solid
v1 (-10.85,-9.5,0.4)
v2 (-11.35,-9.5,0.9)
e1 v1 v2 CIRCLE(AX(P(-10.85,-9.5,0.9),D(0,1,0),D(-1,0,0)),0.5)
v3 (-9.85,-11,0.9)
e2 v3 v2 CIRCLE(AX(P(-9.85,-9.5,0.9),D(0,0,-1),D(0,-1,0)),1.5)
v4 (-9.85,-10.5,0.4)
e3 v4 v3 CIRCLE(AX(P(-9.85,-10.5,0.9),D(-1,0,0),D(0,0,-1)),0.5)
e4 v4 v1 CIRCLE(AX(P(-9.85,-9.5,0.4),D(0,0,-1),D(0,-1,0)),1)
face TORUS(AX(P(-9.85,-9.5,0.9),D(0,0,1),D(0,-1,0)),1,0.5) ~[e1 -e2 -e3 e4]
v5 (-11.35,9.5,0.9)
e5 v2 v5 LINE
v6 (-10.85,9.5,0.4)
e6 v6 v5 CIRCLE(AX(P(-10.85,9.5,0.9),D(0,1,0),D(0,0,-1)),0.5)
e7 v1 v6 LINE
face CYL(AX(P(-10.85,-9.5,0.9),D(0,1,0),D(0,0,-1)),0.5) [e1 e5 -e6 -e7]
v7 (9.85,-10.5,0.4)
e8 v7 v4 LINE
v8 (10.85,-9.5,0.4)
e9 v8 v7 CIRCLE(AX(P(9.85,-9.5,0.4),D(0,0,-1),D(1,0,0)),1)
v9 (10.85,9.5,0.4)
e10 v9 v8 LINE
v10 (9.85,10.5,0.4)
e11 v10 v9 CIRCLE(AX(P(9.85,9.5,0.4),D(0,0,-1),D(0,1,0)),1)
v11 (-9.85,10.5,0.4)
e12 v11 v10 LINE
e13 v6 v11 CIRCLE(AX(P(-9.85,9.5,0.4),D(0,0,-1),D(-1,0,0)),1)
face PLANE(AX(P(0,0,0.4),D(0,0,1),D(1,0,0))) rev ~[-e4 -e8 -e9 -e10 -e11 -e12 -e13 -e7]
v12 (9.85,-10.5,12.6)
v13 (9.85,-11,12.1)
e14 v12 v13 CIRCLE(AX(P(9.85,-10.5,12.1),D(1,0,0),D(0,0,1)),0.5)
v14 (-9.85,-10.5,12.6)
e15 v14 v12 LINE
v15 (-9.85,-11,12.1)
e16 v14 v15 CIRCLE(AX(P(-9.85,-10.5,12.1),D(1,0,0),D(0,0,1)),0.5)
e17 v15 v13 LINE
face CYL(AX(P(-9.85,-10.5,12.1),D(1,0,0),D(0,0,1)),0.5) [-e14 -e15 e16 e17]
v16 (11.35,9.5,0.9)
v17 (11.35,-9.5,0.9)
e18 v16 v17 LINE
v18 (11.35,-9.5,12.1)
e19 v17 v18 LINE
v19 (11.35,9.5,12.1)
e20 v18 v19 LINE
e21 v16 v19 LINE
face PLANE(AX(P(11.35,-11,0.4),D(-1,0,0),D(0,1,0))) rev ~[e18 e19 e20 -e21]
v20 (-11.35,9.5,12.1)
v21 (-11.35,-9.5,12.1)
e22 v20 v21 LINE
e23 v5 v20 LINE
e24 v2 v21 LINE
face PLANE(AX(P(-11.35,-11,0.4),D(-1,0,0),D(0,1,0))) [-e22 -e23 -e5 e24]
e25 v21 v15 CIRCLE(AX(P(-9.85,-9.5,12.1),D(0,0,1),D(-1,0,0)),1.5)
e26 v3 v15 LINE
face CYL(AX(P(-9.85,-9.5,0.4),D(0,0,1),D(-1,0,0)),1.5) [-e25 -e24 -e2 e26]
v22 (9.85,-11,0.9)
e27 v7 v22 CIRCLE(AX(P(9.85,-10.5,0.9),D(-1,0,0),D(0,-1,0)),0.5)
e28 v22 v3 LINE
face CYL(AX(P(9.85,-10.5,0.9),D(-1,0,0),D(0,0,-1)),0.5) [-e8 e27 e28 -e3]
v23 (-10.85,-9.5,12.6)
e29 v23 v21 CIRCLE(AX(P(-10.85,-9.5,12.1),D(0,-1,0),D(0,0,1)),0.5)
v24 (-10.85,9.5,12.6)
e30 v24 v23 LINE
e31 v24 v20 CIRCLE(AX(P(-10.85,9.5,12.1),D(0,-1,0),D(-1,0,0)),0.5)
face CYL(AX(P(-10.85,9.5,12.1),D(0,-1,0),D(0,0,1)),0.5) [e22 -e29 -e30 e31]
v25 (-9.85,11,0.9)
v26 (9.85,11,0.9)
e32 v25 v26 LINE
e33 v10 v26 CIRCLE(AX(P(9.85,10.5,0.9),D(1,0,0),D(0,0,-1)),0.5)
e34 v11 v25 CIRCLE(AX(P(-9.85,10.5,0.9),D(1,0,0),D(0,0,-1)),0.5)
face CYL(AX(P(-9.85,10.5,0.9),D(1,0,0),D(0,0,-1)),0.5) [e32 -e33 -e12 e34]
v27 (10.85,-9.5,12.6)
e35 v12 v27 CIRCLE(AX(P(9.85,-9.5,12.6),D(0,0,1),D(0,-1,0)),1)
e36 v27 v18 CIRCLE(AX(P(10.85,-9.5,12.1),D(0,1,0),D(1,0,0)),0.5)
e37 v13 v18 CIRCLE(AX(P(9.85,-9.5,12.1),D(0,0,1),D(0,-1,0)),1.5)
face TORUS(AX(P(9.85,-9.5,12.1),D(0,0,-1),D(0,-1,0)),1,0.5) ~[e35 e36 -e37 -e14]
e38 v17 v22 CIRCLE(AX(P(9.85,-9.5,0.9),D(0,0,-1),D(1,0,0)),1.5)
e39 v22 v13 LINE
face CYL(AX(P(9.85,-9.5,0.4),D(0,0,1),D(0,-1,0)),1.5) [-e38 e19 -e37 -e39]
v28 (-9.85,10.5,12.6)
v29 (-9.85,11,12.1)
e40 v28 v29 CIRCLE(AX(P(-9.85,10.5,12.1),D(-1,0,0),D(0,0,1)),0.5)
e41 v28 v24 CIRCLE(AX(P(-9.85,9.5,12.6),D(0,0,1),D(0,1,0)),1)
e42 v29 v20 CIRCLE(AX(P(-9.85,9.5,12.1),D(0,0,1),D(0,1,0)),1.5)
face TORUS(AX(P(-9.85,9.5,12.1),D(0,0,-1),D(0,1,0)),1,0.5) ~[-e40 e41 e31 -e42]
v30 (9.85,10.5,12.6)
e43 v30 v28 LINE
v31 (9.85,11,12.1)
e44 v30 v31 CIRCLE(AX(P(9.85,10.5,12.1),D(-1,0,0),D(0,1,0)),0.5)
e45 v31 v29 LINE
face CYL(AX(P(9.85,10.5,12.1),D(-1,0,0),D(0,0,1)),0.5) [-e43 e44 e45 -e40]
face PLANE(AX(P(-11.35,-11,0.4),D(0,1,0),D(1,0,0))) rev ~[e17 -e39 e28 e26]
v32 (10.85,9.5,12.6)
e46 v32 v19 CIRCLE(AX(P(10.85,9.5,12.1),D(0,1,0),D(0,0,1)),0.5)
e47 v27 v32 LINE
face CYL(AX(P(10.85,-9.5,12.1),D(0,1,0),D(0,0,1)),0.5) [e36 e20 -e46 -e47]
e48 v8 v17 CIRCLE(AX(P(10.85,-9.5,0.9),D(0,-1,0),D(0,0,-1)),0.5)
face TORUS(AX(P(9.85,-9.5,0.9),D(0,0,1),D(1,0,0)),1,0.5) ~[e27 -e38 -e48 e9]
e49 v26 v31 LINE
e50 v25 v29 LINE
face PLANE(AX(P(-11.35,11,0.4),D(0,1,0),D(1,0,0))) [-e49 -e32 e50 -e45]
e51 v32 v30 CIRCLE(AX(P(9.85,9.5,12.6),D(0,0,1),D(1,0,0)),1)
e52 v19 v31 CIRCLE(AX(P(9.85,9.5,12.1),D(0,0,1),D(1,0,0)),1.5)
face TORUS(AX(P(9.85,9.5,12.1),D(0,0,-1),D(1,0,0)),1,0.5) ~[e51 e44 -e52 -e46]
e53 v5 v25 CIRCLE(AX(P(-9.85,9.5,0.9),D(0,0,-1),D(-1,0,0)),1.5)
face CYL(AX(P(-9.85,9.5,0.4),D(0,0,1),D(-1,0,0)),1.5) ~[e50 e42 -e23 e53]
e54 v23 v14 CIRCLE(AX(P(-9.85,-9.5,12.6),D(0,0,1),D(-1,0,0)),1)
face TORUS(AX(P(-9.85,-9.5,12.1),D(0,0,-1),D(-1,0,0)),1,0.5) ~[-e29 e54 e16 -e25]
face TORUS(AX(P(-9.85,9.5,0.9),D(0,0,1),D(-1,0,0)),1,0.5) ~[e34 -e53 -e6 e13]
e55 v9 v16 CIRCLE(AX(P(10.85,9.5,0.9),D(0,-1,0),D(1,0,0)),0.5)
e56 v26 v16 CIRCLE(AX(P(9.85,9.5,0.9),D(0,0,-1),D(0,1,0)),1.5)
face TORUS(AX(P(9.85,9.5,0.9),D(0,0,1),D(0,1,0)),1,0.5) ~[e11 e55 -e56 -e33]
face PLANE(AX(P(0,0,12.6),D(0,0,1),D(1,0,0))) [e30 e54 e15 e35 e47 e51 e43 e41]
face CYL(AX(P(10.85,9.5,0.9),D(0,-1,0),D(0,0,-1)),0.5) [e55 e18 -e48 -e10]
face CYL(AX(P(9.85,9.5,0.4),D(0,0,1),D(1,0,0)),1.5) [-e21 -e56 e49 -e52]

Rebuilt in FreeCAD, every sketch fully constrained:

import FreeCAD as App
import Part
import Sketcher


def edges_at(feature, points):
    """Names of the edges that pass closest to the given points."""
    edges = feature.Shape.Edges
    near = lambda p: min(range(len(edges)), key=lambda i: edges[i].distToShape(Part.Vertex(*p))[0])
    return sorted({f"Edge{near(p) + 1}" for p in points})


def add_polygon(sketch, points):
    """Adds a closed chain of lines whose ends are joined by coincident constraints."""
    first, n = sketch.GeometryCount, len(points)
    for a, b in zip(points, points[1:] + points[:1]):
        sketch.addGeometry(Part.LineSegment(App.Vector(*a, 0), App.Vector(*b, 0)), False)
    for i in range(n):
        sketch.addConstraint(Sketcher.Constraint("Coincident", first + i, 2, first + (i + 1) % n, 1))

doc = App.newDocument("Part")
body = doc.addObject("PartDesign::Body", "Body")

sketch1 = doc.addObject("Sketcher::SketchObject", "Sketch")
body.addObject(sketch1)
sketch1.AttachmentSupport = (doc.XY_Plane, [""])
sketch1.MapMode = "FlatFace"
add_polygon(sketch1, [(-11, 11), (-11, -11), (11, -11), (11, 11)])
sketch1.addConstraint(Sketcher.Constraint("Vertical", 0))
sketch1.addConstraint(Sketcher.Constraint("Horizontal", 1))
sketch1.addConstraint(Sketcher.Constraint("Vertical", 2))
sketch1.addConstraint(Sketcher.Constraint("Horizontal", 3))
sketch1.addConstraint(Sketcher.Constraint("Symmetric", 0, 2, 2, 2, -1, 1))
sketch1.addConstraint(Sketcher.Constraint("DistanceY", 0, 2, 0, 1, 22.0))
sketch1.addConstraint(Sketcher.Constraint("DistanceX", 1, 1, 1, 2, 22.7))
pad1 = doc.addObject("PartDesign::Pad", "Pad")
body.addObject(pad1)
pad1.Profile = sketch1
pad1.Length = 12.2
doc.recompute()

fillet = doc.addObject("PartDesign::Fillet", "Fillet")
body.addObject(fillet)
fillet.Base = (pad1, edges_at(pad1, [
    (11.35, -11, 6.1),
    (-11.35, -11, 6.1),
    (11.35, 11, 6.1),
    (-11.35, 11, 6.1),
]))
fillet.Radius = 1.5
doc.recompute()

fillet2 = doc.addObject("PartDesign::Fillet", "Fillet001")
body.addObject(fillet2)
fillet2.Base = (fillet, edges_at(fillet, [(0, -11, 12.2)]))
fillet2.Radius = 0.5
doc.recompute()

fillet3 = doc.addObject("PartDesign::Fillet", "Fillet002")
body.addObject(fillet3)
fillet3.Base = (fillet2, edges_at(fillet2, [(0, 11, 0)]))
fillet3.Radius = 0.5
body2 = doc.addObject("PartDesign::Body", "Body001")
doc.recompute()

body.Placement = App.Placement(App.Vector(0, 0, 0.4), App.Rotation(App.Vector(0, 0, 1), 0))
boolean = doc.addObject("PartDesign::Boolean", "Boolean")
body2.addObject(boolean)
boolean.Type = "Fuse"
boolean.addObjects([body])

doc.recompute()
